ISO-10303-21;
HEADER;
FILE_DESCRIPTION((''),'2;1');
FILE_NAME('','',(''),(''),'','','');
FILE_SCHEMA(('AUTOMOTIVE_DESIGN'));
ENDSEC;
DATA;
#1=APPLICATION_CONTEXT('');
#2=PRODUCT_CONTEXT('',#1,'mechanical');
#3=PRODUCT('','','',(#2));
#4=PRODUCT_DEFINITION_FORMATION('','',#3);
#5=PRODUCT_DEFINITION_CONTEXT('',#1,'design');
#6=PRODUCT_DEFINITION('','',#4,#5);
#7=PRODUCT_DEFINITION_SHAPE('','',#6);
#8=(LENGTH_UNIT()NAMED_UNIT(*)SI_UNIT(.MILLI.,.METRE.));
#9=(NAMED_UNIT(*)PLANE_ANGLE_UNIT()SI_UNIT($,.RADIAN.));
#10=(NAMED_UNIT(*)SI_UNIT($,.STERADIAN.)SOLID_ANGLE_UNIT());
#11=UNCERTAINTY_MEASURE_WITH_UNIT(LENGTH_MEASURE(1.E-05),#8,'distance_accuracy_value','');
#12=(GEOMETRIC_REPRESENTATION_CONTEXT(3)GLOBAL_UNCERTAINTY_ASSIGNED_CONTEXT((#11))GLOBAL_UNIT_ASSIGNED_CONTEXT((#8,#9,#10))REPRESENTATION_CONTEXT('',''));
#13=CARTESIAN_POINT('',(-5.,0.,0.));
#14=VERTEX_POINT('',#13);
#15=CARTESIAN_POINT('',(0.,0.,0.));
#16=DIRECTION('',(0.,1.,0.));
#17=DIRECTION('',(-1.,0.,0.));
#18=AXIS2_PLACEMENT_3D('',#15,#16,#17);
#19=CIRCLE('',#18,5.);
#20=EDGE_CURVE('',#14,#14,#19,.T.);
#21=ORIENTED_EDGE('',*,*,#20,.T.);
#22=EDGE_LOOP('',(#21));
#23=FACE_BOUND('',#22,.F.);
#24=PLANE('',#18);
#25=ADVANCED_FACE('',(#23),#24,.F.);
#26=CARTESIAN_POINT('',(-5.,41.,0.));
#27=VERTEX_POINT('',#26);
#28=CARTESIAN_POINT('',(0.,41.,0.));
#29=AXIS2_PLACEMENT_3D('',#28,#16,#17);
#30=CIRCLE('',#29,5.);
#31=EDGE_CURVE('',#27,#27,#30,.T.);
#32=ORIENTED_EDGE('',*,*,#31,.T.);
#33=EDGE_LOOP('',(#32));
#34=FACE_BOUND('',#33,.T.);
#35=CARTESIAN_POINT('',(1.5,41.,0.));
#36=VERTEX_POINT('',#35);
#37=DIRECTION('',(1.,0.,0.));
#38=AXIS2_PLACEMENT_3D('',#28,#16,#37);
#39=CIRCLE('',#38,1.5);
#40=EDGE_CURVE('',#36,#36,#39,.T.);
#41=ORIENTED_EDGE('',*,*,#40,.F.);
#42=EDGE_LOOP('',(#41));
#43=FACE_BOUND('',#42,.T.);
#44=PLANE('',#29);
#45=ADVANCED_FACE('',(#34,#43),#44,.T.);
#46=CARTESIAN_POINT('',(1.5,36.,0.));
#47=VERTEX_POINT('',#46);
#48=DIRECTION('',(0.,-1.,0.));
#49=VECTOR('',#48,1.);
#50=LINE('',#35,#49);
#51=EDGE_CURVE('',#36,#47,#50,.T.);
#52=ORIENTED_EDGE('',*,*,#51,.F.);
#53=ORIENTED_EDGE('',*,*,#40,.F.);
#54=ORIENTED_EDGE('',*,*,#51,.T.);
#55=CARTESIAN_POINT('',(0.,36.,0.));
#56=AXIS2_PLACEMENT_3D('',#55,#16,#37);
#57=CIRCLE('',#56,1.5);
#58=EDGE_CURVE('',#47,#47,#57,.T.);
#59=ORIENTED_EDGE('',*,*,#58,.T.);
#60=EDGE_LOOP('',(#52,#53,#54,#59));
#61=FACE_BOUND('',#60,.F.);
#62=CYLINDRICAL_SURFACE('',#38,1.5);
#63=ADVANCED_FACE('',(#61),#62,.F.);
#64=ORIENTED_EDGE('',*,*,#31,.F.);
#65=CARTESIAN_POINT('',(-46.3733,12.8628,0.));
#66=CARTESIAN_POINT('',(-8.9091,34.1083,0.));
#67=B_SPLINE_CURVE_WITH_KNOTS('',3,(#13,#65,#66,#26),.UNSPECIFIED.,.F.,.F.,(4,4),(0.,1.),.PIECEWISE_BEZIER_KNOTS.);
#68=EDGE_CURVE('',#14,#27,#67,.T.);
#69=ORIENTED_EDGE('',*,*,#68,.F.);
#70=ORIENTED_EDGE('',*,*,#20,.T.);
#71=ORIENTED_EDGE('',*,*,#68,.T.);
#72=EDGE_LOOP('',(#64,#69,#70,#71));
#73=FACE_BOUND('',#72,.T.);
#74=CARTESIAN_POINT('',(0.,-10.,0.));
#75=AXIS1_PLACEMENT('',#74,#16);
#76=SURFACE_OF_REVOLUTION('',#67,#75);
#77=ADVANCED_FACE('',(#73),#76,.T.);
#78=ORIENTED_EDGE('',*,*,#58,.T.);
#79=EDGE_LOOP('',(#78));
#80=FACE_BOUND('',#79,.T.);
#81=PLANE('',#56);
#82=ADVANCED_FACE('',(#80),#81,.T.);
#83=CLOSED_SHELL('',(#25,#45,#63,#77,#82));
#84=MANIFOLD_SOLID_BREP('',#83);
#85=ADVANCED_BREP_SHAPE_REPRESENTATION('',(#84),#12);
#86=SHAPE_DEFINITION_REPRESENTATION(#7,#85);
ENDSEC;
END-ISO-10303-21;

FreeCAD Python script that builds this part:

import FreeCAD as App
import Part
import Sketcher

V = App.Vector

doc = App.newDocument("Part")
body = doc.addObject("PartDesign::Body", "Body")

sketch1 = body.newObject("Sketcher::SketchObject", "Sketch")
sketch1.AttachmentSupport = (doc.getObject("XY_Plane"), [""])
sketch1.MapMode = "FlatFace"
sketch1.addGeometry(Part.BSplineCurve([V(-5, 0, 0), V(-46.3733, 12.8628, 0), V(-8.9091, 34.1083, 0), V(-5, 41, 0)], [4, 4], [0, 1], False, 3, [1, 1, 1, 1], False), False)
sketch1.addGeometry(Part.LineSegment(V(-5, 0, 0), V(0, 0, 0)), False)
sketch1.addGeometry(Part.LineSegment(V(0, 0, 0), V(0, 41, 0)), False)
sketch1.addGeometry(Part.LineSegment(V(0, 41, 0), V(-5, 41, 0)), False)
sketch1.addConstraint(Sketcher.Constraint("Block", 0))
sketch1.addConstraint(Sketcher.Constraint("Coincident", 0, 1, 1, 1))
sketch1.addConstraint(Sketcher.Constraint("Coincident", 1, 2, 2, 1))
sketch1.addConstraint(Sketcher.Constraint("Coincident", 2, 2, 3, 1))
sketch1.addConstraint(Sketcher.Constraint("Coincident", 3, 2, 0, 2))
sketch1.addConstraint(Sketcher.Constraint("Horizontal", 1))
sketch1.addConstraint(Sketcher.Constraint("Vertical", 2))
sketch1.addConstraint(Sketcher.Constraint("Horizontal", 3))
sketch1.addConstraint(Sketcher.Constraint("PointOnObject", 2, 2, -2))
revolution = body.newObject("PartDesign::Revolution", "Revolution")
revolution.Profile = sketch1
revolution.ReferenceAxis = (sketch1, ["V_Axis"])
revolution.Angle = 360

sketch2 = body.newObject("Sketcher::SketchObject", "Sketch001")
sketch2.AttachmentSupport = (doc.getObject("XZ_Plane"), [""])
sketch2.MapMode = "FlatFace"
sketch2.AttachmentOffset = App.Placement(V(0, 0, -41), App.Rotation())
sketch2.addGeometry(Part.Circle(V(0, 0, 0), V(0, 0, 1), 1.5), False)
sketch2.addConstraint(Sketcher.Constraint("Coincident", 0, 3, -1, 1))
sketch2.addConstraint(Sketcher.Constraint("Diameter", 0, 3.0))
pocket1 = body.newObject("PartDesign::Pocket", "Pocket")
pocket1.Profile = sketch2
pocket1.Length = 5
pocket1.Reversed = True

doc.recompute()
